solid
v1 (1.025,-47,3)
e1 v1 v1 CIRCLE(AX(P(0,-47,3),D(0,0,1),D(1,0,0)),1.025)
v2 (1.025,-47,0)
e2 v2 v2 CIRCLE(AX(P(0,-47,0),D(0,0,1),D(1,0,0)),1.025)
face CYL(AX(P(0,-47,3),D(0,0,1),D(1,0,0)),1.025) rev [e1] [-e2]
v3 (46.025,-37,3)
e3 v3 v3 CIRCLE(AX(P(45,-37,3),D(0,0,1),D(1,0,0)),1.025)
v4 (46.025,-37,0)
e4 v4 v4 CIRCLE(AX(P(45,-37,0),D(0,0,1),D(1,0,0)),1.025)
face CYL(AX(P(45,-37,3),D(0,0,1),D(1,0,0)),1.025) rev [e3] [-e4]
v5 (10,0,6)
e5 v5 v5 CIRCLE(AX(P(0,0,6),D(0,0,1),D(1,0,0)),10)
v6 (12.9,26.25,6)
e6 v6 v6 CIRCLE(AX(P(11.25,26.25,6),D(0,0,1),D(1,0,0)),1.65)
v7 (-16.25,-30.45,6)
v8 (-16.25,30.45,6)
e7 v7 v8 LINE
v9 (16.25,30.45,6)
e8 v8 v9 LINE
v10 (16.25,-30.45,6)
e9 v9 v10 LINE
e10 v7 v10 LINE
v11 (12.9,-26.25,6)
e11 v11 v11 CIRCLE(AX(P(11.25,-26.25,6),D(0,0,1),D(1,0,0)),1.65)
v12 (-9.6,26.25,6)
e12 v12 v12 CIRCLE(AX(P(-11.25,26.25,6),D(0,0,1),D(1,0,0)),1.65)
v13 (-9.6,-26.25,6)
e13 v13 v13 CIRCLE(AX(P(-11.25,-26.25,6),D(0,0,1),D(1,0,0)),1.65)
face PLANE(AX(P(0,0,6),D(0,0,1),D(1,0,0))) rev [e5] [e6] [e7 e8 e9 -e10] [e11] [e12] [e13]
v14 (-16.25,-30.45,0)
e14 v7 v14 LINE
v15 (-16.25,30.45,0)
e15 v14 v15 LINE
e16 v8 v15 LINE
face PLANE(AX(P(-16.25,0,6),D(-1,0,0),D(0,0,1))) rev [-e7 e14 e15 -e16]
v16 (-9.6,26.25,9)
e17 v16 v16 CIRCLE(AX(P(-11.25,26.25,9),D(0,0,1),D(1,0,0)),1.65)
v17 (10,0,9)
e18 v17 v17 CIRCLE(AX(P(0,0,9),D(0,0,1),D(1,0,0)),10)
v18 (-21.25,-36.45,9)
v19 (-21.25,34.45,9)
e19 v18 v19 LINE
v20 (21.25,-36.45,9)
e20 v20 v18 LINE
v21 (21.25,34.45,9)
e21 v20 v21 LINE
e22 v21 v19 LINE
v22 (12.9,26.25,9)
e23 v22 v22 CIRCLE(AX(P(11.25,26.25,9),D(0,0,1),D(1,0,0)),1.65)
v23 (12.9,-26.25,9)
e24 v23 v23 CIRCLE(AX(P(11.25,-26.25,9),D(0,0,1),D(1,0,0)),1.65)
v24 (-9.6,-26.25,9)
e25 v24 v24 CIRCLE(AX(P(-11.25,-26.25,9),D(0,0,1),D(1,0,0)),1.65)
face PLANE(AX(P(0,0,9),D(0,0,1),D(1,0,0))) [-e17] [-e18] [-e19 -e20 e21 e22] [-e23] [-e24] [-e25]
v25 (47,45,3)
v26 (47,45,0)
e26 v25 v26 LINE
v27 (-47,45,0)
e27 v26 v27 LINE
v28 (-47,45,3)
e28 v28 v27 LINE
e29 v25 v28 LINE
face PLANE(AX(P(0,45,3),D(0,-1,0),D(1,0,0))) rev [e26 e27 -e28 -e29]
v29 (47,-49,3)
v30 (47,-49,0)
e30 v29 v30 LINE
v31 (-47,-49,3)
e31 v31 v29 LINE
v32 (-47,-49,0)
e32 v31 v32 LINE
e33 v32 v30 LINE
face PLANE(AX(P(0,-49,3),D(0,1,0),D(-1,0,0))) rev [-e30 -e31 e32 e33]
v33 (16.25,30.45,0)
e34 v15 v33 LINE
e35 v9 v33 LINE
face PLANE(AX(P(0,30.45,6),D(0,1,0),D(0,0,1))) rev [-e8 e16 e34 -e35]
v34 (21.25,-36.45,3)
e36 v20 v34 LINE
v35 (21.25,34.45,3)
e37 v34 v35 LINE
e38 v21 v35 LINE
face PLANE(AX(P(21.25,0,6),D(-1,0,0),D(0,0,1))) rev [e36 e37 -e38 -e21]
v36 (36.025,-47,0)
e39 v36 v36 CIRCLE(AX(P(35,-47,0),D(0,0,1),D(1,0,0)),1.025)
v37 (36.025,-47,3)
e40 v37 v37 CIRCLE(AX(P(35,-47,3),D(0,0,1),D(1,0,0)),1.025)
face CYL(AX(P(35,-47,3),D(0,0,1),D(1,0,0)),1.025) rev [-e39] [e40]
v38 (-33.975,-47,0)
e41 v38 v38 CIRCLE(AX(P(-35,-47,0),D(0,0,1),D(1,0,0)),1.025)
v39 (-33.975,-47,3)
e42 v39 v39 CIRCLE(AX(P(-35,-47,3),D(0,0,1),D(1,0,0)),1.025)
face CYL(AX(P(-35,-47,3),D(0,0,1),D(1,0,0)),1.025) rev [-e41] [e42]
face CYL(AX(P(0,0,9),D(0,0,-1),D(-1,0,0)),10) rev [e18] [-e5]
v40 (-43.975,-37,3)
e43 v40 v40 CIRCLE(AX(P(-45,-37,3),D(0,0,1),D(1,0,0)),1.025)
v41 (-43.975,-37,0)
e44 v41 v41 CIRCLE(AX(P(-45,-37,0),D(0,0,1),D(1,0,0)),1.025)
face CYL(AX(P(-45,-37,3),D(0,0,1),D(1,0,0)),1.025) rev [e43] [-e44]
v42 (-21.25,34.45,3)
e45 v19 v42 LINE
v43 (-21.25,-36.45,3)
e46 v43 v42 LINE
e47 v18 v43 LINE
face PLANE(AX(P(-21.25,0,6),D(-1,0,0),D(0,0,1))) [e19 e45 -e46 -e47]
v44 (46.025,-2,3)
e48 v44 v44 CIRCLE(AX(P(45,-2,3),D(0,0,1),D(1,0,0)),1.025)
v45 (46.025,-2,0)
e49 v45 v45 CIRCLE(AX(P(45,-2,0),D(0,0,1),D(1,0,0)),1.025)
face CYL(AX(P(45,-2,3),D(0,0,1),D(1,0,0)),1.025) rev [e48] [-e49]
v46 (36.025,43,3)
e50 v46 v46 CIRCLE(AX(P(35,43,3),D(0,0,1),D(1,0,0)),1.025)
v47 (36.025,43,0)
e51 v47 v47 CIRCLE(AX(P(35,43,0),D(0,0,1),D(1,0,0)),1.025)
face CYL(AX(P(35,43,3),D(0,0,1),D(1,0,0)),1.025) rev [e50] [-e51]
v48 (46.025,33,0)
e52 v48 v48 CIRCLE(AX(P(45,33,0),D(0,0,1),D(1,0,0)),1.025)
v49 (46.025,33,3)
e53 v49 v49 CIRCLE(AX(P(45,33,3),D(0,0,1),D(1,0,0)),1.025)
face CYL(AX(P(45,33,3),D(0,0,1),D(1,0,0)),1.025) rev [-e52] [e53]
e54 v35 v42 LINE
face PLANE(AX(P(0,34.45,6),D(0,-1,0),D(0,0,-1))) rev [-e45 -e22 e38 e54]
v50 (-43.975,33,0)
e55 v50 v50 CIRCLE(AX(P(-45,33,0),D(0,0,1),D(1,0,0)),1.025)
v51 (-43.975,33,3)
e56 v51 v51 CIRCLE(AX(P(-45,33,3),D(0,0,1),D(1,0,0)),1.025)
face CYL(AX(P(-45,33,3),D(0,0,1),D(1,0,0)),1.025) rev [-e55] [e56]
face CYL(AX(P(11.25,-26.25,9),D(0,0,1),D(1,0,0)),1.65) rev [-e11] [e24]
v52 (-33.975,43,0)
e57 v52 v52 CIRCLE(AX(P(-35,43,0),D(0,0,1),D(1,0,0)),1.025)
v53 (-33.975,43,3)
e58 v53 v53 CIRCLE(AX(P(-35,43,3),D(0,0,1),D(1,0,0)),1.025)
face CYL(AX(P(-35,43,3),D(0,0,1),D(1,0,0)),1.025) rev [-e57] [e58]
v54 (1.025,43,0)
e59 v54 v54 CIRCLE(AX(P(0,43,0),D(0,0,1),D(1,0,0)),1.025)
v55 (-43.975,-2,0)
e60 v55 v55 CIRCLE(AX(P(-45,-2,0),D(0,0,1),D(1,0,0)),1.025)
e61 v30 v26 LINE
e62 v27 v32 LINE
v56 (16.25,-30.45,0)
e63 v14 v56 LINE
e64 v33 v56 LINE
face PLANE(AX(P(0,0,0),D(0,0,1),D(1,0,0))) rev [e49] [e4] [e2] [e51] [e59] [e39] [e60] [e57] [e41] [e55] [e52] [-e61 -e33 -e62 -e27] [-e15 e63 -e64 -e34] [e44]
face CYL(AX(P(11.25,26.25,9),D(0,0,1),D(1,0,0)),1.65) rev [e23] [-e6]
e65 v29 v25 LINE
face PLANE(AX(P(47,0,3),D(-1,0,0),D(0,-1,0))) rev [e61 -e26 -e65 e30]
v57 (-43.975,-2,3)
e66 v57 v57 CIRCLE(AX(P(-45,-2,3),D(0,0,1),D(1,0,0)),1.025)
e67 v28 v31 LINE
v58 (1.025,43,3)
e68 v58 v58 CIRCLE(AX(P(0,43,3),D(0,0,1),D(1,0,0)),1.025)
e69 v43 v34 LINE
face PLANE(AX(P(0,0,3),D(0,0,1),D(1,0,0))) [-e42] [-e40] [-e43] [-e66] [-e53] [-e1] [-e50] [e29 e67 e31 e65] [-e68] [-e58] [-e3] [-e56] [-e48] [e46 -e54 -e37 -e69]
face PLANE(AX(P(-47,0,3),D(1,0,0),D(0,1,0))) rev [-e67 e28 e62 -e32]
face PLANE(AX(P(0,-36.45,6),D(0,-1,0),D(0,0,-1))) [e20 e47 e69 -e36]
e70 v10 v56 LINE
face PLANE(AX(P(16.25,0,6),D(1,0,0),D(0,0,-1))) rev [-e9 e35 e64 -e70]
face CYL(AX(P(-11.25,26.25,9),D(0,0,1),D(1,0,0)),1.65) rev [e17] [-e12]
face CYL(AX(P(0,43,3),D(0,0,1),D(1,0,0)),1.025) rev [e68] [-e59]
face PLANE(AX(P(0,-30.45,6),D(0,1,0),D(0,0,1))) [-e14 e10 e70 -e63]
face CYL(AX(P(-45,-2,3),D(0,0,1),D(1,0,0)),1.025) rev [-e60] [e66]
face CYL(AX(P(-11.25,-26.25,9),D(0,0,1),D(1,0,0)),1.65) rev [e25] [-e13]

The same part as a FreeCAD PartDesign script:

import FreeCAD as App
import Part
import Sketcher

doc = App.newDocument("Part")
body = doc.addObject("PartDesign::Body", "Body")

sketch1 = body.newObject("Sketcher::SketchObject", "Sketch")
sketch1.AttachmentSupport = (doc.getObject("XY_Plane"), [""])
sketch1.MapMode = "FlatFace"
sketch1.addGeometry([
    Part.LineSegment(App.Vector(-47, 45, 0), App.Vector(-47, -49, 0)),
    Part.LineSegment(App.Vector(-47, -49, 0), App.Vector(47, -49, 0)),
    Part.LineSegment(App.Vector(47, -49, 0), App.Vector(47, 45, 0)),
    Part.LineSegment(App.Vector(47, 45, 0), App.Vector(-47, 45, 0)),
    Part.LineSegment(App.Vector(21, -36, 0), App.Vector(-21, -36, 0)),
    Part.LineSegment(App.Vector(-21, -36, 0), App.Vector(-21, 34, 0)),
    Part.LineSegment(App.Vector(-21, 34, 0), App.Vector(21, 34, 0)),
    Part.LineSegment(App.Vector(21, 34, 0), App.Vector(21, -36, 0)),
], False)
sketch1.addConstraint([
    Sketcher.Constraint("Coincident", 0, 2, 1, 1),
    Sketcher.Constraint("Coincident", 1, 2, 2, 1),
    Sketcher.Constraint("Coincident", 2, 2, 3, 1),
    Sketcher.Constraint("Coincident", 3, 2, 0, 1),
    Sketcher.Constraint("Coincident", 4, 2, 5, 1),
    Sketcher.Constraint("Coincident", 5, 2, 6, 1),
    Sketcher.Constraint("Coincident", 6, 2, 7, 1),
    Sketcher.Constraint("Coincident", 7, 2, 4, 1),
    Sketcher.Constraint("Vertical", 0),
    Sketcher.Constraint("Horizontal", 1),
    Sketcher.Constraint("Vertical", 2),
    Sketcher.Constraint("Horizontal", 3),
    Sketcher.Constraint("Horizontal", 4),
    Sketcher.Constraint("Vertical", 5),
    Sketcher.Constraint("Horizontal", 6),
    Sketcher.Constraint("Vertical", 7),
    Sketcher.Constraint("Equal", 3, 0),
    Sketcher.Constraint("DistanceX", 1, 1, 1, 2, 94.0),
    Sketcher.Constraint("DistanceX", 4, 2, 4, 1, 42.5),
    Sketcher.Constraint("DistanceY", 5, 1, 5, 2, 70.9),
    Sketcher.Constraint("DistanceX", 0, 2, -1, 1, 47.0),
    Sketcher.Constraint("DistanceY", 0, 2, -1, 1, 49.0),
    Sketcher.Constraint("DistanceX", 4, 2, -1, 1, 21.25),
    Sketcher.Constraint("DistanceY", 4, 2, -1, 1, 36.45),
])
pad1 = body.newObject("PartDesign::Pad", "Pad")
pad1.Profile = sketch1
pad1.Length = 3

sketch2 = body.newObject("Sketcher::SketchObject", "Sketch001")
sketch2.AttachmentSupport = (doc.getObject("XY_Plane"), [""])
sketch2.MapMode = "FlatFace"
sketch2.addGeometry([
    Part.LineSegment(App.Vector(-21, 34, 0), App.Vector(-21, -36, 0)),
    Part.LineSegment(App.Vector(-21, -36, 0), App.Vector(21, -36, 0)),
    Part.LineSegment(App.Vector(21, -36, 0), App.Vector(21, 34, 0)),
    Part.LineSegment(App.Vector(21, 34, 0), App.Vector(-21, 34, 0)),
    Part.LineSegment(App.Vector(16, -30, 0), App.Vector(-16, -30, 0)),
    Part.LineSegment(App.Vector(-16, -30, 0), App.Vector(-16, 30, 0)),
    Part.LineSegment(App.Vector(-16, 30, 0), App.Vector(16, 30, 0)),
    Part.LineSegment(App.Vector(16, 30, 0), App.Vector(16, -30, 0)),
], False)
sketch2.addConstraint([
    Sketcher.Constraint("Coincident", 0, 2, 1, 1),
    Sketcher.Constraint("Coincident", 1, 2, 2, 1),
    Sketcher.Constraint("Coincident", 2, 2, 3, 1),
    Sketcher.Constraint("Coincident", 3, 2, 0, 1),
    Sketcher.Constraint("Coincident", 4, 2, 5, 1),
    Sketcher.Constraint("Coincident", 5, 2, 6, 1),
    Sketcher.Constraint("Coincident", 6, 2, 7, 1),
    Sketcher.Constraint("Coincident", 7, 2, 4, 1),
    Sketcher.Constraint("Vertical", 0),
    Sketcher.Constraint("Horizontal", 1),
    Sketcher.Constraint("Vertical", 2),
    Sketcher.Constraint("Horizontal", 3),
    Sketcher.Constraint("Horizontal", 4),
    Sketcher.Constraint("Vertical", 5),
    Sketcher.Constraint("Horizontal", 6),
    Sketcher.Constraint("Vertical", 7),
    Sketcher.Constraint("Symmetric", 4, 2, 6, 2, -1, 1),
    Sketcher.Constraint("DistanceX", 1, 1, 1, 2, 42.5),
    Sketcher.Constraint("DistanceX", 4, 2, 4, 1, 32.5),
    Sketcher.Constraint("DistanceY", 0, 2, 0, 1, 70.9),
    Sketcher.Constraint("DistanceY", 5, 1, 5, 2, 60.9),
    Sketcher.Constraint("DistanceX", 0, 2, 4, 2, 5.0),
    Sketcher.Constraint("DistanceY", 0, 2, 4, 2, 6.0),
])
pad2 = body.newObject("PartDesign::Pad", "Pad001")
pad2.Profile = sketch2
pad2.Length = 6

sketch3 = body.newObject("Sketcher::SketchObject", "Sketch002")
sketch3.AttachmentSupport = (doc.getObject("XY_Plane"), [""])
sketch3.MapMode = "FlatFace"
sketch3.AttachmentOffset = App.Placement(App.Vector(0, 0, 6), App.Rotation())
sketch3.addGeometry([
    Part.LineSegment(App.Vector(-21, 34, 0), App.Vector(-21, -36, 0)),
    Part.LineSegment(App.Vector(-21, -36, 0), App.Vector(21, -36, 0)),
    Part.LineSegment(App.Vector(21, -36, 0), App.Vector(21, 34, 0)),
    Part.LineSegment(App.Vector(21, 34, 0), App.Vector(-21, 34, 0)),
    Part.Circle(App.Vector(0, 0, 0), App.Vector(0, 0, 1), 10),
], False)
sketch3.addConstraint([
    Sketcher.Constraint("Coincident", 0, 2, 1, 1),
    Sketcher.Constraint("Coincident", 1, 2, 2, 1),
    Sketcher.Constraint("Coincident", 2, 2, 3, 1),
    Sketcher.Constraint("Coincident", 3, 2, 0, 1),
    Sketcher.Constraint("Vertical", 0),
    Sketcher.Constraint("Horizontal", 1),
    Sketcher.Constraint("Vertical", 2),
    Sketcher.Constraint("Horizontal", 3),
    Sketcher.Constraint("Coincident", 4, 3, -1, 1),
    Sketcher.Constraint("Diameter", 4, 20.0),
    Sketcher.Constraint("DistanceX", 1, 1, 1, 2, 42.5),
    Sketcher.Constraint("DistanceY", 0, 2, 0, 1, 70.9),
    Sketcher.Constraint("DistanceX", 0, 2, -1, 1, 21.25),
    Sketcher.Constraint("DistanceY", 0, 2, -1, 1, 36.45),
])
pad3 = body.newObject("PartDesign::Pad", "Pad002")
pad3.Profile = sketch3
pad3.Length = 3

sketch4 = body.newObject("Sketcher::SketchObject", "Sketch003")
sketch4.AttachmentSupport = (doc.getObject("XY_Plane"), [""])
sketch4.MapMode = "FlatFace"
sketch4.AttachmentOffset = App.Placement(App.Vector(0, 0, 9), App.Rotation())
sketch4.addGeometry([
    Part.Circle(App.Vector(11.2, 26.2, 0), App.Vector(0, 0, 1), 1.6),
    Part.Circle(App.Vector(-11.2, 26.2, 0), App.Vector(0, 0, 1), 1.6),
    Part.Circle(App.Vector(-11.2, -26.2, 0), App.Vector(0, 0, 1), 1.6),
    Part.Circle(App.Vector(11.2, -26.2, 0), App.Vector(0, 0, 1), 1.6),
], False)
sketch4.addConstraint([
    Sketcher.Constraint("Equal", 0, 1),
    Sketcher.Constraint("Equal", 1, 2),
    Sketcher.Constraint("Equal", 2, 3),
    Sketcher.Constraint("Symmetric", 0, 3, 2, 3, -1, 1),
    Sketcher.Constraint("Symmetric", 1, 3, 3, 3, -1, 1),
    Sketcher.Constraint("Symmetric", 0, 3, 1, 3, -2),
    Sketcher.Constraint("Diameter", 0, 3.3),
    Sketcher.Constraint("DistanceX", 1, 3, 0, 3, 22.5),
    Sketcher.Constraint("DistanceY", 2, 3, 1, 3, 52.5),
])
doc.recompute()
hole = body.newObject("PartDesign::Hole", "Hole")
hole.Profile = sketch4
hole.ThreadType = "None"
hole.Diameter = 3.3
hole.DepthType = "Dimension"
hole.Depth = 11.5
hole.DrillPoint = "Angled"
hole.DrillPointAngle = 118

sketch5 = body.newObject("Sketcher::SketchObject", "Sketch004")
sketch5.AttachmentSupport = (doc.getObject("XY_Plane"), [""])
sketch5.MapMode = "FlatFace"
sketch5.AttachmentOffset = App.Placement(App.Vector(0, 0, 3), App.Rotation())
sketch5.addGeometry([
    Part.Circle(App.Vector(-45, 33, 0), App.Vector(0, 0, 1), 1),
    Part.Circle(App.Vector(-45, -2, 0), App.Vector(0, 0, 1), 1),
    Part.Circle(App.Vector(-45, -37, 0), App.Vector(0, 0, 1), 1),
    Part.Circle(App.Vector(-35, 43, 0), App.Vector(0, 0, 1), 1),
    Part.Circle(App.Vector(0, 43, 0), App.Vector(0, 0, 1), 1),
    Part.Circle(App.Vector(35, 43, 0), App.Vector(0, 0, 1), 1),
    Part.Circle(App.Vector(45, 33, 0), App.Vector(0, 0, 1), 1),
], False)
sketch5.addConstraint([
    Sketcher.Constraint("Equal", 0, 1),
    Sketcher.Constraint("Equal", 1, 2),
    Sketcher.Constraint("Equal", 2, 3),
    Sketcher.Constraint("Equal", 3, 4),
    Sketcher.Constraint("Equal", 4, 5),
    Sketcher.Constraint("Equal", 5, 6),
    Sketcher.Constraint("Symmetric", 3, 3, 5, 3, -2),
    Sketcher.Constraint("Symmetric", 0, 3, 6, 3, -2),
    Sketcher.Constraint("PointOnObject", 4, 3, -2),
    Sketcher.Constraint("Horizontal", 3, 3, 4, 3),
    Sketcher.Constraint("Vertical", 0, 3, 1, 3),
    Sketcher.Constraint("Vertical", 1, 3, 2, 3),
    Sketcher.Constraint("Diameter", 0, 2.05),
    Sketcher.Constraint("DistanceX", 0, 3, -1, 1, 45.0),
    Sketcher.Constraint("DistanceY", -1, 1, 0, 3, 33.0),
    Sketcher.Constraint("DistanceY", 1, 3, -1, 1, 2.0),
    Sketcher.Constraint("DistanceY", 2, 3, -1, 1, 37.0),
    Sketcher.Constraint("DistanceX", 3, 3, -1, 1, 35.0),
    Sketcher.Constraint("DistanceY", -1, 1, 3, 3, 43.0),
])
doc.recompute()
hole2 = body.newObject("PartDesign::Hole", "Hole001")
hole2.Profile = sketch5
hole2.ThreadType = "None"
hole2.Diameter = 2.05
hole2.DepthType = "Dimension"
hole2.Depth = 7.25
hole2.DrillPoint = "Angled"
hole2.DrillPointAngle = 118

sketch6 = body.newObject("Sketcher::SketchObject", "Sketch005")
sketch6.AttachmentSupport = (doc.getObject("XY_Plane"), [""])
sketch6.MapMode = "FlatFace"
sketch6.AttachmentOffset = App.Placement(App.Vector(0, 0, 3), App.Rotation())
sketch6.addGeometry([
    Part.Circle(App.Vector(45, -2, 0), App.Vector(0, 0, 1), 1),
    Part.Circle(App.Vector(45, -37, 0), App.Vector(0, 0, 1), 1),
    Part.Circle(App.Vector(35, -47, 0), App.Vector(0, 0, 1), 1),
    Part.Circle(App.Vector(0, -47, 0), App.Vector(0, 0, 1), 1),
    Part.Circle(App.Vector(-35, -47, 0), App.Vector(0, 0, 1), 1),
], False)
sketch6.addConstraint([
    Sketcher.Constraint("Equal", 0, 1),
    Sketcher.Constraint("Equal", 1, 2),
    Sketcher.Constraint("Equal", 2, 3),
    Sketcher.Constraint("Equal", 3, 4),
    Sketcher.Constraint("Symmetric", 2, 3, 4, 3, -2),
    Sketcher.Constraint("PointOnObject", 3, 3, -2),
    Sketcher.Constraint("Horizontal", 2, 3, 3, 3),
    Sketcher.Constraint("Vertical", 0, 3, 1, 3),
    Sketcher.Constraint("Diameter", 0, 2.05),
    Sketcher.Constraint("DistanceX", -1, 1, 0, 3, 45.0),
    Sketcher.Constraint("DistanceY", 0, 3, -1, 1, 2.0),
    Sketcher.Constraint("DistanceY", 1, 3, -1, 1, 37.0),
    Sketcher.Constraint("DistanceX", -1, 1, 2, 3, 35.0),
    Sketcher.Constraint("DistanceY", 2, 3, -1, 1, 47.0),
])
doc.recompute()
hole3 = body.newObject("PartDesign::Hole", "Hole002")
hole3.Profile = sketch6
hole3.ThreadType = "None"
hole3.Diameter = 2.05
hole3.DepthType = "Dimension"
hole3.Depth = 7.25
hole3.DrillPoint = "Angled"
hole3.DrillPointAngle = 118

doc.recompute()
